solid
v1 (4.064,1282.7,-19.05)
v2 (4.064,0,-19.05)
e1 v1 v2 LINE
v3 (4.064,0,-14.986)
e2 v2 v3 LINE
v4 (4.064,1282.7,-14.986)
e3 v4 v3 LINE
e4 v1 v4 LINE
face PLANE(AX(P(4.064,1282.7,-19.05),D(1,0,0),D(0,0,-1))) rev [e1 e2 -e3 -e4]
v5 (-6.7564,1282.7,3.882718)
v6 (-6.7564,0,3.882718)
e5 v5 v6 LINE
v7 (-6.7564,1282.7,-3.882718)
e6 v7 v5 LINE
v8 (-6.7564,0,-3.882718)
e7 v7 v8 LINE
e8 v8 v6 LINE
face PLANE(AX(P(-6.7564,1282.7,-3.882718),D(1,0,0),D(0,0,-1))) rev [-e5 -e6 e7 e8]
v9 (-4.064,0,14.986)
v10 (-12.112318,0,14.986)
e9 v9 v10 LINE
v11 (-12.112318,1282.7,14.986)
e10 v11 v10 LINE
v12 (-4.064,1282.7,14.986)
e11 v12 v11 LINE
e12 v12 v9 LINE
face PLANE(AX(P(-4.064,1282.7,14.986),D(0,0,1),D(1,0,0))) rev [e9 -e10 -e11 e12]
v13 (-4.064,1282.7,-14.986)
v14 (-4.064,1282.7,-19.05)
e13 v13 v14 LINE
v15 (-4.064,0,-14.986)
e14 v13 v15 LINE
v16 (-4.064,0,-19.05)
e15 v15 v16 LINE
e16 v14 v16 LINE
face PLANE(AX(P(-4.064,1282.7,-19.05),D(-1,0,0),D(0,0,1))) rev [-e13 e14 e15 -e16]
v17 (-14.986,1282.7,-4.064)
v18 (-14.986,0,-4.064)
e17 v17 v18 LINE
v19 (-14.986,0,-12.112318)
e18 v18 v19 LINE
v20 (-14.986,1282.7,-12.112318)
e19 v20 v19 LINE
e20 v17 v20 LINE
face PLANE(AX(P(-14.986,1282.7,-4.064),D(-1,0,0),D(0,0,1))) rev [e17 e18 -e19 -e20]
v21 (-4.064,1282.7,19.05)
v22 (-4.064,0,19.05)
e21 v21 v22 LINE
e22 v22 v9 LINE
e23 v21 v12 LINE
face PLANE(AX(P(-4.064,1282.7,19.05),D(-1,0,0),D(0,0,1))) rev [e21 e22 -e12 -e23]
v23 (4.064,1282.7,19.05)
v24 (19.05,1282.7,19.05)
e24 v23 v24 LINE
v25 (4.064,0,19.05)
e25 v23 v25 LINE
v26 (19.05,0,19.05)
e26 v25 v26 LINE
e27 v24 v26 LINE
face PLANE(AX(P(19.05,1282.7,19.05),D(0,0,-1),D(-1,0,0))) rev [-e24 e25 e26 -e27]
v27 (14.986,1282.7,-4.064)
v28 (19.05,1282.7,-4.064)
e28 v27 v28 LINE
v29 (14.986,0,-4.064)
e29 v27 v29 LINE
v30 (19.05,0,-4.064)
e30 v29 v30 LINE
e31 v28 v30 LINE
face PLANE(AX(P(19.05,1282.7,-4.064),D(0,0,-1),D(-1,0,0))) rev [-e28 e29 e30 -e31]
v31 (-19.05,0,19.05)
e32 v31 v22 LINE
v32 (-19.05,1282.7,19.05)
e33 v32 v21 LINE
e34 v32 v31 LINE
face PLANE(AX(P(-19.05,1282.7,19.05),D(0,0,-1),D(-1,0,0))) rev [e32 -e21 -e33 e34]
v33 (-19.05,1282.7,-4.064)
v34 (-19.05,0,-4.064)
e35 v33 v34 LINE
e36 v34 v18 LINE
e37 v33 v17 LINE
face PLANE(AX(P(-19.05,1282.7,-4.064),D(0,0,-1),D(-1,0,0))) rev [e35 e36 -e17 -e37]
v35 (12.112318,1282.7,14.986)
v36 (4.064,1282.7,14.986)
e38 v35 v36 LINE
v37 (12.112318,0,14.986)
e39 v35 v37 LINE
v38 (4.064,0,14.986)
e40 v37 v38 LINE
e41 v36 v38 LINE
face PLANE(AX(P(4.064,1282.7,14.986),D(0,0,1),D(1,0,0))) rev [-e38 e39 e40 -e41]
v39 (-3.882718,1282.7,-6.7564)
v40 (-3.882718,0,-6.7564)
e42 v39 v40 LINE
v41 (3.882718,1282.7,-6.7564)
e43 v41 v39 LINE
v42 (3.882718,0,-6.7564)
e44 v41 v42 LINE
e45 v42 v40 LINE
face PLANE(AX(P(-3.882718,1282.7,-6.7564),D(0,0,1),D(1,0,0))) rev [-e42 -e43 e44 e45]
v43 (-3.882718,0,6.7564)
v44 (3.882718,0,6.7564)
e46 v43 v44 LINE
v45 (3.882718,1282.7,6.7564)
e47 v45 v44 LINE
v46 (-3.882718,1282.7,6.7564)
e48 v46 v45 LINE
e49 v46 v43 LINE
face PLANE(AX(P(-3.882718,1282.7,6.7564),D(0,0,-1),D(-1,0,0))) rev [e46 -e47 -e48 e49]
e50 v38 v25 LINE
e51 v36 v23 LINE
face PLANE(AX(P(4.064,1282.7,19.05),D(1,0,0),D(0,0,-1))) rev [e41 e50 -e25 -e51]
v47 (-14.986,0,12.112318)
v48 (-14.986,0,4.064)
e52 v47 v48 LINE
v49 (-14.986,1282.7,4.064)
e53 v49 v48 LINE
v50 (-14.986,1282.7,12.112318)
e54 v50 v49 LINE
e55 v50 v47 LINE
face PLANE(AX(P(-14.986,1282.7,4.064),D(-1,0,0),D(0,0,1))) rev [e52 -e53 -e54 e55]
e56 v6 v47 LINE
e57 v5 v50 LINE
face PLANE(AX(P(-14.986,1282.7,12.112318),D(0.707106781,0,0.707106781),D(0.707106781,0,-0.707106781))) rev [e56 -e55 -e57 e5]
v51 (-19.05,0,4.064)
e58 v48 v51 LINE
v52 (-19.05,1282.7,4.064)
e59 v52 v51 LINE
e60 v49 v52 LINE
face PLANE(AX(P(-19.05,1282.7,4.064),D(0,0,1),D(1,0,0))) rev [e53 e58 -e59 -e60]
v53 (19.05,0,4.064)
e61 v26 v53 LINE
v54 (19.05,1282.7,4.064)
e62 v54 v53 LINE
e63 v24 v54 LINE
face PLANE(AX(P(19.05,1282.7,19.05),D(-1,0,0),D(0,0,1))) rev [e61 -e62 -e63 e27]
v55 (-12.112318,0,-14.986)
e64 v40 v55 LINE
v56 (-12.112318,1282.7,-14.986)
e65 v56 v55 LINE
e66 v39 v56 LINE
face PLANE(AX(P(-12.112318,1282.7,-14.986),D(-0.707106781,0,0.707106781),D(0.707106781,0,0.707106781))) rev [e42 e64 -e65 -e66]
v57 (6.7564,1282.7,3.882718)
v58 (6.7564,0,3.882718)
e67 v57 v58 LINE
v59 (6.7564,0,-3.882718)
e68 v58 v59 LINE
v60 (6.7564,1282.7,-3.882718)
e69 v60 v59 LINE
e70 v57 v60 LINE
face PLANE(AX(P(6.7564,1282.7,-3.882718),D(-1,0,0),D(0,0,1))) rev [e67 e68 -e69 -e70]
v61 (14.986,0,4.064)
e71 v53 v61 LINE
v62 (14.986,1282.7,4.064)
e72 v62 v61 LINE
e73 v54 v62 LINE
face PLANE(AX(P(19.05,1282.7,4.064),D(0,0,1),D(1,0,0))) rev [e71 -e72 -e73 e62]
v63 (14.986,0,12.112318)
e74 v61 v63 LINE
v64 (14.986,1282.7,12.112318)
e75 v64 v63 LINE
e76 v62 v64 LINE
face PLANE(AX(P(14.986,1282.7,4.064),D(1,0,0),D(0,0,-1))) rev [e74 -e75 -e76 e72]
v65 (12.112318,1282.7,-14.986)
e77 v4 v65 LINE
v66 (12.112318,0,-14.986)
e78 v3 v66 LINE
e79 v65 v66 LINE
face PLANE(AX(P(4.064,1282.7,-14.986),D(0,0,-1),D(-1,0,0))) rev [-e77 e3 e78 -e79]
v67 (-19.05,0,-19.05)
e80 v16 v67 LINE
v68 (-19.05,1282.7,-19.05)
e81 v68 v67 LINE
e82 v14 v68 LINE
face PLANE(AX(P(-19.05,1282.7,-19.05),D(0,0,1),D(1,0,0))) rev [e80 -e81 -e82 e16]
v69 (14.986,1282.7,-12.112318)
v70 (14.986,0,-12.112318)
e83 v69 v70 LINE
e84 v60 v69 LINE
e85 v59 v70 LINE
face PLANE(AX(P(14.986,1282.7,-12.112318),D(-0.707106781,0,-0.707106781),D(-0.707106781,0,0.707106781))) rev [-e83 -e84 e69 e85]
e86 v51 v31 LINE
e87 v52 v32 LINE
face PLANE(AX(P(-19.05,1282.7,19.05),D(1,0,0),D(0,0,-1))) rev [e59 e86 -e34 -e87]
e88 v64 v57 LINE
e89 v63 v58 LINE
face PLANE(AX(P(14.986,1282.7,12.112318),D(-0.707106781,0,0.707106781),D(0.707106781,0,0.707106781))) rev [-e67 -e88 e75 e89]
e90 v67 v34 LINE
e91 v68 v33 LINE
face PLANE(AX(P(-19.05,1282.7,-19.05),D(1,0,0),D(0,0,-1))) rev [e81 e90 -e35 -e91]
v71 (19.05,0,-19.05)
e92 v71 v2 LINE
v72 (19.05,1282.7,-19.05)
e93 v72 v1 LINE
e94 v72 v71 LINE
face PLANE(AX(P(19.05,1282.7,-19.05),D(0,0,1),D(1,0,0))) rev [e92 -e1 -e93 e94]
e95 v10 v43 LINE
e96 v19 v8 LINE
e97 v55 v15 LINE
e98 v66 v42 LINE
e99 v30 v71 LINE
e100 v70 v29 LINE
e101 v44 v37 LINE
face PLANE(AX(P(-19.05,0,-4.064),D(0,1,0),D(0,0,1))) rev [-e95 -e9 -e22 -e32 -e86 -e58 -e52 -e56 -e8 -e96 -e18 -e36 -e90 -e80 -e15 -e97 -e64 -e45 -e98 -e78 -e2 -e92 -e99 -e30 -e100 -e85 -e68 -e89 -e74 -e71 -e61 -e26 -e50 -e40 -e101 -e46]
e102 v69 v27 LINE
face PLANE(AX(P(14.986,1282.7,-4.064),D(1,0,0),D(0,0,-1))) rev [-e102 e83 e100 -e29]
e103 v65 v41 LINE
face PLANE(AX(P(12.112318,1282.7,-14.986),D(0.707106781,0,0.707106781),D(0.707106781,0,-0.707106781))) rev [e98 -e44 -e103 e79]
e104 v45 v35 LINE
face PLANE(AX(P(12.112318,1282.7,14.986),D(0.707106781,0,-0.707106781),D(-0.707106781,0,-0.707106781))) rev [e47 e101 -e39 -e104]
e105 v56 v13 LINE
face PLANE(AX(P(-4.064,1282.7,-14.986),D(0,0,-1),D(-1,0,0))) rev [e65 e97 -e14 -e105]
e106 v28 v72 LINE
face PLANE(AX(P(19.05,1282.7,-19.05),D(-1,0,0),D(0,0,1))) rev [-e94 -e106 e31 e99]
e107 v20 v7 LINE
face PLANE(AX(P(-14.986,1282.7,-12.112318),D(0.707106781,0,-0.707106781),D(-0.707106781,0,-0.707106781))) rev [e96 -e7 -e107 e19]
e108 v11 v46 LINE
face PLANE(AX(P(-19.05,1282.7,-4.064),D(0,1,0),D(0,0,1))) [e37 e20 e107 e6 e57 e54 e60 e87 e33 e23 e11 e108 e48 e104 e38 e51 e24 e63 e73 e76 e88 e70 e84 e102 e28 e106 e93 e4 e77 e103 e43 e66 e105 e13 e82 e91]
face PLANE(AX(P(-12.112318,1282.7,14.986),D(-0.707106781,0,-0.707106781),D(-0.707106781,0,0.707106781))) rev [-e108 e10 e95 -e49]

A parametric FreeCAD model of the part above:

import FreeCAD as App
import Part
import Sketcher

V = App.Vector
Q = App.Units.Quantity


def add_polygon(sketch, points):
    """Adds a closed chain of lines whose ends are joined by coincident constraints."""
    first, n = sketch.GeometryCount, len(points)
    for a, b in zip(points, points[1:] + points[:1]):
        sketch.addGeometry(Part.LineSegment(App.Vector(*a, 0), App.Vector(*b, 0)), False)
    for i in range(n):
        sketch.addConstraint(Sketcher.Constraint("Coincident", first + i, 2, first + (i + 1) % n, 1))

doc = App.newDocument("Part")
params = doc.addObject("Spreadsheet::Sheet", "Params")
for row, (alias, value) in enumerate([
    ("sketch1_width", "0.59 in"),
    ("sketch1_width2", "0.16 in"),
    ("pad1_length", "50.5 in"),
], start=1):
    params.set(f"A{row}", alias)
    params.set(f"B{row}", "=" + value)
    params.setAlias(f"B{row}", alias)

body = doc.addObject("PartDesign::Body", "Body")

# Sketch on XZ plane
sketch1 = body.newObject("Sketcher::SketchObject", "Sketch")
sketch1.AttachmentSupport = (doc.getObject("XZ_Plane"), [""])
sketch1.MapMode = "FlatFace"
add_polygon(sketch1, [(-4.064, -19.05), (-19.05, -19.05), (-19.05, -4.064), (-14.986, -4.064), (-14.986, -12.112318), (-6.7564, -3.882718), (-6.7564, 3.882718), (-14.986, 12.112318), (-14.986, 4.064), (-19.05, 4.064), (-19.05, 19.05), (-4.064, 19.05), (-4.064, 14.986), (-12.112318, 14.986), (-3.882718, 6.7564), (3.882718, 6.7564), (12.112318, 14.986), (4.064, 14.986), (4.064, 19.05), (19.05, 19.05), (19.05, 4.064), (14.986, 4.064), (14.986, 12.112318), (6.7564, 3.882718), (6.7564, -3.882718), (14.986, -12.112318), (14.986, -4.064), (19.05, -4.064), (19.05, -19.05), (4.064, -19.05), (4.064, -14.986), (12.112318, -14.986), (3.882718, -6.7564), (-3.882718, -6.7564), (-12.112318, -14.986), (-4.064, -14.986)])  # lines 0-35
sketch1.addConstraint([
    Sketcher.Constraint("Horizontal", 0),
    Sketcher.Constraint("Vertical", 1),
    Sketcher.Constraint("Horizontal", 2),
    Sketcher.Constraint("Vertical", 3),
    Sketcher.Constraint("Vertical", 5),
    Sketcher.Constraint("Vertical", 7),
    Sketcher.Constraint("Horizontal", 8),
    Sketcher.Constraint("Vertical", 9),
    Sketcher.Constraint("Horizontal", 10),
    Sketcher.Constraint("Vertical", 11),
    Sketcher.Constraint("Horizontal", 12),
    Sketcher.Constraint("Horizontal", 14),
    Sketcher.Constraint("Horizontal", 16),
    Sketcher.Constraint("Vertical", 17),
    Sketcher.Constraint("Horizontal", 18),
    Sketcher.Constraint("Vertical", 19),
    Sketcher.Constraint("Horizontal", 20),
    Sketcher.Constraint("Vertical", 21),
    Sketcher.Constraint("Vertical", 23),
    Sketcher.Constraint("Vertical", 25),
    Sketcher.Constraint("Horizontal", 26),
    Sketcher.Constraint("Vertical", 27),
    Sketcher.Constraint("Horizontal", 28),
    Sketcher.Constraint("Vertical", 29),
    Sketcher.Constraint("Horizontal", 30),
    Sketcher.Constraint("Horizontal", 32),
    Sketcher.Constraint("Horizontal", 34),
    Sketcher.Constraint("Vertical", 35),
    Sketcher.Constraint("Symmetric", 0, 2, 18, 2, -1, 1),
    Sketcher.Constraint("Symmetric", 2, 2, 20, 2, -1, 1),
    Sketcher.Constraint("Symmetric", 4, 2, 22, 2, -1, 1),
    Sketcher.Constraint("Symmetric", 6, 2, 24, 2, -1, 1),
    Sketcher.Constraint("Symmetric", 8, 2, 26, 2, -1, 1),
    Sketcher.Constraint("Symmetric", 10, 2, 28, 2, -1, 1),
    Sketcher.Constraint("Symmetric", 12, 2, 30, 2, -1, 1),
    Sketcher.Constraint("Symmetric", 13, 2, 31, 2, -1, 1),
    Sketcher.Constraint("Symmetric", 15, 2, 33, 2, -1, 1),
    Sketcher.Constraint("Symmetric", 12, 2, 15, 2, -2),
    Sketcher.Constraint("Symmetric", 10, 2, 17, 2, -2),
    Sketcher.Constraint("Symmetric", 8, 2, 19, 2, -2),
    Sketcher.Constraint("Symmetric", 6, 2, 21, 2, -2),
    Sketcher.Constraint("Perpendicular", 4, 6),
    Sketcher.Constraint("Parallel", 6, 13),
    Sketcher.Constraint("Perpendicular", 13, 15),
    Sketcher.Constraint("Parallel", 15, 22),
    Sketcher.Constraint("Perpendicular", 22, 24),
    Sketcher.Constraint("Perpendicular", 31, 33),
    Sketcher.Constraint("Horizontal", 5, 2, 22, 2),
    Sketcher.Constraint("Vertical", 11, 2, 34, 2),
    Sketcher.Constraint("Equal", 28, 1),
    Sketcher.Constraint("Equal", 34, 3),
    Sketcher.Constraint("Equal", 32, 5),
    Sketcher.Constraint("Equal", 26, 11),
    Sketcher.Constraint("Equal", 6, 13),
    Sketcher.Constraint("DistanceX", 0, 2, 0, 1, Q("0.59 in")),
    Sketcher.Constraint("DistanceX", 2, 1, 2, 2, Q("0.16 in")),
    Sketcher.Constraint("DistanceX", 0, 2, -1, 1, Q("0.75 in")),
    Sketcher.Constraint("DistanceX", 4, 2, -1, 1, Q("0.266 in")),
    Sketcher.Constraint("DistanceX", 12, 2, 12, 1, 8.048318),
])
sketch1.setExpression("Constraints[90]", "Params.sketch1_width")
sketch1.setExpression("Constraints[91]", "Params.sketch1_width2")
pad1 = body.newObject("PartDesign::Pad", "Pad")
pad1.Profile = sketch1
pad1.setExpression("Length", "Params.pad1_length")
pad1.Reversed = True

doc.recompute()
